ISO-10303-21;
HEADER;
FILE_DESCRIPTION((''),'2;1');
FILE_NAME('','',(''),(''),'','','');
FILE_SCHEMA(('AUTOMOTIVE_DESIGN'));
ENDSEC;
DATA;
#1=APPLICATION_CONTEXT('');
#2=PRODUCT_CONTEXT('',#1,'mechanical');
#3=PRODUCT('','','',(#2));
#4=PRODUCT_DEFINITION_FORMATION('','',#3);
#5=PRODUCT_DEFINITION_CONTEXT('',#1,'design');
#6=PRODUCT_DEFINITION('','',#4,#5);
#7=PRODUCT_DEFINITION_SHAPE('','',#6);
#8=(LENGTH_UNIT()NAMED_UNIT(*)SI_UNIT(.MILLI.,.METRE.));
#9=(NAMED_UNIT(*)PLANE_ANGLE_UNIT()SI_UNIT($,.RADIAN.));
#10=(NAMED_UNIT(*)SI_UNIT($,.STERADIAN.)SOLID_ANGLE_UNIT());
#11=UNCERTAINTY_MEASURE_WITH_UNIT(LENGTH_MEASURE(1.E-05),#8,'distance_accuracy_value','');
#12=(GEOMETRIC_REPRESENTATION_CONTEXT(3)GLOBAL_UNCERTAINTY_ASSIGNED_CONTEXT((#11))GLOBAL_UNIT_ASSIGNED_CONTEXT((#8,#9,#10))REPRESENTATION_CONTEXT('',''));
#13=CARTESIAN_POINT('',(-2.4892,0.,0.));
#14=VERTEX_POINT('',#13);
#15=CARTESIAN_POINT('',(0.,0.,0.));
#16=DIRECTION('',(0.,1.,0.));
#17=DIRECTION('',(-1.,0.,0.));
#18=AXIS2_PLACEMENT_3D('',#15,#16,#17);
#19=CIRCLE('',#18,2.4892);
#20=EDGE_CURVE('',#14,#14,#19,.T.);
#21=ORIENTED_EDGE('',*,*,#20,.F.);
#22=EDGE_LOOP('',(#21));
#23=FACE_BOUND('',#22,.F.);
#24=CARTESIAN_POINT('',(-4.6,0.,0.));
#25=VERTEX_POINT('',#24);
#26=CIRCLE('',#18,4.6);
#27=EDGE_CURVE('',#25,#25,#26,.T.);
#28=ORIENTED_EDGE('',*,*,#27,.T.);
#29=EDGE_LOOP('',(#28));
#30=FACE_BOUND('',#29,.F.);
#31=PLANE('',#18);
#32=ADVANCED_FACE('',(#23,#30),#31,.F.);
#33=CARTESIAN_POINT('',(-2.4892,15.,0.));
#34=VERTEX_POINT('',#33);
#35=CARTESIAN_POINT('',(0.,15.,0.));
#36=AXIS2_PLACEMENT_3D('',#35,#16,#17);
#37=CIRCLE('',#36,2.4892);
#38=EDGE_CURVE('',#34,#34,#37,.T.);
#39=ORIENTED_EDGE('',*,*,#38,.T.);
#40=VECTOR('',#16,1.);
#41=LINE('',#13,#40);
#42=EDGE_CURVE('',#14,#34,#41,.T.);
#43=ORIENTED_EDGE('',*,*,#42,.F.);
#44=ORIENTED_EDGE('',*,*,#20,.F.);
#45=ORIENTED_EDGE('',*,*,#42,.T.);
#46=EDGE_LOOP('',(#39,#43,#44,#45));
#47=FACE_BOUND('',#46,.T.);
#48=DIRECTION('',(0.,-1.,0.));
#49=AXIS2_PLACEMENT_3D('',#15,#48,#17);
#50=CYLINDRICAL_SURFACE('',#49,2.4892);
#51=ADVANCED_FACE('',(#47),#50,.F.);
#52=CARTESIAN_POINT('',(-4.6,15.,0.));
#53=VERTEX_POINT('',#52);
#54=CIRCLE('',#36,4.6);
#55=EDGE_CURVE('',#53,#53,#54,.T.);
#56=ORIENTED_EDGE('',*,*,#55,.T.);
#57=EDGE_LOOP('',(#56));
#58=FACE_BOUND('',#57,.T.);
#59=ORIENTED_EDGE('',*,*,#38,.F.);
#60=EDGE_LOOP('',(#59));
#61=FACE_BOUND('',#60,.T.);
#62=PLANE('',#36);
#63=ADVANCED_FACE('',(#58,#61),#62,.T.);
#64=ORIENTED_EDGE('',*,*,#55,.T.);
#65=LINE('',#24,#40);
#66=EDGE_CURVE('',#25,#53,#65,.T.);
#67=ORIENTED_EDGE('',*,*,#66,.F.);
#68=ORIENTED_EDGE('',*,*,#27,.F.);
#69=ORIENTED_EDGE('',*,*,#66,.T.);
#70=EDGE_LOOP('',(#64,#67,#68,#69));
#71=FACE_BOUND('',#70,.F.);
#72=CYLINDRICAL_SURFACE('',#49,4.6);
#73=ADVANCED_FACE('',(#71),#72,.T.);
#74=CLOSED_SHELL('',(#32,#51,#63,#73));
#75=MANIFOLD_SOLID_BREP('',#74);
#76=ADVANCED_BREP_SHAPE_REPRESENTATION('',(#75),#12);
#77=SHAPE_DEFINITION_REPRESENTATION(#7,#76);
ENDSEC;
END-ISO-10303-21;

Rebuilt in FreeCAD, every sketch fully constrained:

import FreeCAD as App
import Part
import Sketcher
Q = App.Units.Quantity

doc = App.newDocument("Part")
body = doc.addObject("PartDesign::Body", "Body")

# Sketch on XZ plane
sketch1 = doc.addObject("Sketcher::SketchObject", "Sketch")
body.addObject(sketch1)
sketch1.AttachmentSupport = (doc.XZ_Plane, [""])
sketch1.MapMode = "FlatFace"
sketch1.addGeometry(Part.Circle(App.Vector(0, 0, 0), App.Vector(0, 0, 1), 4.6), False)
sketch1.addGeometry(Part.Circle(App.Vector(0, 0, 0), App.Vector(0, 0, 1), 2.5), False)
sketch1.addConstraint(Sketcher.Constraint("Coincident", 0, 3, -1, 1))
sketch1.addConstraint(Sketcher.Constraint("Coincident", 1, 3, -1, 1))
sketch1.addConstraint(Sketcher.Constraint("Diameter", 0, Q("9.2 mm")))
sketch1.addConstraint(Sketcher.Constraint("Diameter", 1, Q("4.9784 mm")))
pad1 = doc.addObject("PartDesign::Pad", "Pad")
body.addObject(pad1)
pad1.Profile = sketch1
pad1.Length = 15
pad1.Reversed = True

doc.recompute()
